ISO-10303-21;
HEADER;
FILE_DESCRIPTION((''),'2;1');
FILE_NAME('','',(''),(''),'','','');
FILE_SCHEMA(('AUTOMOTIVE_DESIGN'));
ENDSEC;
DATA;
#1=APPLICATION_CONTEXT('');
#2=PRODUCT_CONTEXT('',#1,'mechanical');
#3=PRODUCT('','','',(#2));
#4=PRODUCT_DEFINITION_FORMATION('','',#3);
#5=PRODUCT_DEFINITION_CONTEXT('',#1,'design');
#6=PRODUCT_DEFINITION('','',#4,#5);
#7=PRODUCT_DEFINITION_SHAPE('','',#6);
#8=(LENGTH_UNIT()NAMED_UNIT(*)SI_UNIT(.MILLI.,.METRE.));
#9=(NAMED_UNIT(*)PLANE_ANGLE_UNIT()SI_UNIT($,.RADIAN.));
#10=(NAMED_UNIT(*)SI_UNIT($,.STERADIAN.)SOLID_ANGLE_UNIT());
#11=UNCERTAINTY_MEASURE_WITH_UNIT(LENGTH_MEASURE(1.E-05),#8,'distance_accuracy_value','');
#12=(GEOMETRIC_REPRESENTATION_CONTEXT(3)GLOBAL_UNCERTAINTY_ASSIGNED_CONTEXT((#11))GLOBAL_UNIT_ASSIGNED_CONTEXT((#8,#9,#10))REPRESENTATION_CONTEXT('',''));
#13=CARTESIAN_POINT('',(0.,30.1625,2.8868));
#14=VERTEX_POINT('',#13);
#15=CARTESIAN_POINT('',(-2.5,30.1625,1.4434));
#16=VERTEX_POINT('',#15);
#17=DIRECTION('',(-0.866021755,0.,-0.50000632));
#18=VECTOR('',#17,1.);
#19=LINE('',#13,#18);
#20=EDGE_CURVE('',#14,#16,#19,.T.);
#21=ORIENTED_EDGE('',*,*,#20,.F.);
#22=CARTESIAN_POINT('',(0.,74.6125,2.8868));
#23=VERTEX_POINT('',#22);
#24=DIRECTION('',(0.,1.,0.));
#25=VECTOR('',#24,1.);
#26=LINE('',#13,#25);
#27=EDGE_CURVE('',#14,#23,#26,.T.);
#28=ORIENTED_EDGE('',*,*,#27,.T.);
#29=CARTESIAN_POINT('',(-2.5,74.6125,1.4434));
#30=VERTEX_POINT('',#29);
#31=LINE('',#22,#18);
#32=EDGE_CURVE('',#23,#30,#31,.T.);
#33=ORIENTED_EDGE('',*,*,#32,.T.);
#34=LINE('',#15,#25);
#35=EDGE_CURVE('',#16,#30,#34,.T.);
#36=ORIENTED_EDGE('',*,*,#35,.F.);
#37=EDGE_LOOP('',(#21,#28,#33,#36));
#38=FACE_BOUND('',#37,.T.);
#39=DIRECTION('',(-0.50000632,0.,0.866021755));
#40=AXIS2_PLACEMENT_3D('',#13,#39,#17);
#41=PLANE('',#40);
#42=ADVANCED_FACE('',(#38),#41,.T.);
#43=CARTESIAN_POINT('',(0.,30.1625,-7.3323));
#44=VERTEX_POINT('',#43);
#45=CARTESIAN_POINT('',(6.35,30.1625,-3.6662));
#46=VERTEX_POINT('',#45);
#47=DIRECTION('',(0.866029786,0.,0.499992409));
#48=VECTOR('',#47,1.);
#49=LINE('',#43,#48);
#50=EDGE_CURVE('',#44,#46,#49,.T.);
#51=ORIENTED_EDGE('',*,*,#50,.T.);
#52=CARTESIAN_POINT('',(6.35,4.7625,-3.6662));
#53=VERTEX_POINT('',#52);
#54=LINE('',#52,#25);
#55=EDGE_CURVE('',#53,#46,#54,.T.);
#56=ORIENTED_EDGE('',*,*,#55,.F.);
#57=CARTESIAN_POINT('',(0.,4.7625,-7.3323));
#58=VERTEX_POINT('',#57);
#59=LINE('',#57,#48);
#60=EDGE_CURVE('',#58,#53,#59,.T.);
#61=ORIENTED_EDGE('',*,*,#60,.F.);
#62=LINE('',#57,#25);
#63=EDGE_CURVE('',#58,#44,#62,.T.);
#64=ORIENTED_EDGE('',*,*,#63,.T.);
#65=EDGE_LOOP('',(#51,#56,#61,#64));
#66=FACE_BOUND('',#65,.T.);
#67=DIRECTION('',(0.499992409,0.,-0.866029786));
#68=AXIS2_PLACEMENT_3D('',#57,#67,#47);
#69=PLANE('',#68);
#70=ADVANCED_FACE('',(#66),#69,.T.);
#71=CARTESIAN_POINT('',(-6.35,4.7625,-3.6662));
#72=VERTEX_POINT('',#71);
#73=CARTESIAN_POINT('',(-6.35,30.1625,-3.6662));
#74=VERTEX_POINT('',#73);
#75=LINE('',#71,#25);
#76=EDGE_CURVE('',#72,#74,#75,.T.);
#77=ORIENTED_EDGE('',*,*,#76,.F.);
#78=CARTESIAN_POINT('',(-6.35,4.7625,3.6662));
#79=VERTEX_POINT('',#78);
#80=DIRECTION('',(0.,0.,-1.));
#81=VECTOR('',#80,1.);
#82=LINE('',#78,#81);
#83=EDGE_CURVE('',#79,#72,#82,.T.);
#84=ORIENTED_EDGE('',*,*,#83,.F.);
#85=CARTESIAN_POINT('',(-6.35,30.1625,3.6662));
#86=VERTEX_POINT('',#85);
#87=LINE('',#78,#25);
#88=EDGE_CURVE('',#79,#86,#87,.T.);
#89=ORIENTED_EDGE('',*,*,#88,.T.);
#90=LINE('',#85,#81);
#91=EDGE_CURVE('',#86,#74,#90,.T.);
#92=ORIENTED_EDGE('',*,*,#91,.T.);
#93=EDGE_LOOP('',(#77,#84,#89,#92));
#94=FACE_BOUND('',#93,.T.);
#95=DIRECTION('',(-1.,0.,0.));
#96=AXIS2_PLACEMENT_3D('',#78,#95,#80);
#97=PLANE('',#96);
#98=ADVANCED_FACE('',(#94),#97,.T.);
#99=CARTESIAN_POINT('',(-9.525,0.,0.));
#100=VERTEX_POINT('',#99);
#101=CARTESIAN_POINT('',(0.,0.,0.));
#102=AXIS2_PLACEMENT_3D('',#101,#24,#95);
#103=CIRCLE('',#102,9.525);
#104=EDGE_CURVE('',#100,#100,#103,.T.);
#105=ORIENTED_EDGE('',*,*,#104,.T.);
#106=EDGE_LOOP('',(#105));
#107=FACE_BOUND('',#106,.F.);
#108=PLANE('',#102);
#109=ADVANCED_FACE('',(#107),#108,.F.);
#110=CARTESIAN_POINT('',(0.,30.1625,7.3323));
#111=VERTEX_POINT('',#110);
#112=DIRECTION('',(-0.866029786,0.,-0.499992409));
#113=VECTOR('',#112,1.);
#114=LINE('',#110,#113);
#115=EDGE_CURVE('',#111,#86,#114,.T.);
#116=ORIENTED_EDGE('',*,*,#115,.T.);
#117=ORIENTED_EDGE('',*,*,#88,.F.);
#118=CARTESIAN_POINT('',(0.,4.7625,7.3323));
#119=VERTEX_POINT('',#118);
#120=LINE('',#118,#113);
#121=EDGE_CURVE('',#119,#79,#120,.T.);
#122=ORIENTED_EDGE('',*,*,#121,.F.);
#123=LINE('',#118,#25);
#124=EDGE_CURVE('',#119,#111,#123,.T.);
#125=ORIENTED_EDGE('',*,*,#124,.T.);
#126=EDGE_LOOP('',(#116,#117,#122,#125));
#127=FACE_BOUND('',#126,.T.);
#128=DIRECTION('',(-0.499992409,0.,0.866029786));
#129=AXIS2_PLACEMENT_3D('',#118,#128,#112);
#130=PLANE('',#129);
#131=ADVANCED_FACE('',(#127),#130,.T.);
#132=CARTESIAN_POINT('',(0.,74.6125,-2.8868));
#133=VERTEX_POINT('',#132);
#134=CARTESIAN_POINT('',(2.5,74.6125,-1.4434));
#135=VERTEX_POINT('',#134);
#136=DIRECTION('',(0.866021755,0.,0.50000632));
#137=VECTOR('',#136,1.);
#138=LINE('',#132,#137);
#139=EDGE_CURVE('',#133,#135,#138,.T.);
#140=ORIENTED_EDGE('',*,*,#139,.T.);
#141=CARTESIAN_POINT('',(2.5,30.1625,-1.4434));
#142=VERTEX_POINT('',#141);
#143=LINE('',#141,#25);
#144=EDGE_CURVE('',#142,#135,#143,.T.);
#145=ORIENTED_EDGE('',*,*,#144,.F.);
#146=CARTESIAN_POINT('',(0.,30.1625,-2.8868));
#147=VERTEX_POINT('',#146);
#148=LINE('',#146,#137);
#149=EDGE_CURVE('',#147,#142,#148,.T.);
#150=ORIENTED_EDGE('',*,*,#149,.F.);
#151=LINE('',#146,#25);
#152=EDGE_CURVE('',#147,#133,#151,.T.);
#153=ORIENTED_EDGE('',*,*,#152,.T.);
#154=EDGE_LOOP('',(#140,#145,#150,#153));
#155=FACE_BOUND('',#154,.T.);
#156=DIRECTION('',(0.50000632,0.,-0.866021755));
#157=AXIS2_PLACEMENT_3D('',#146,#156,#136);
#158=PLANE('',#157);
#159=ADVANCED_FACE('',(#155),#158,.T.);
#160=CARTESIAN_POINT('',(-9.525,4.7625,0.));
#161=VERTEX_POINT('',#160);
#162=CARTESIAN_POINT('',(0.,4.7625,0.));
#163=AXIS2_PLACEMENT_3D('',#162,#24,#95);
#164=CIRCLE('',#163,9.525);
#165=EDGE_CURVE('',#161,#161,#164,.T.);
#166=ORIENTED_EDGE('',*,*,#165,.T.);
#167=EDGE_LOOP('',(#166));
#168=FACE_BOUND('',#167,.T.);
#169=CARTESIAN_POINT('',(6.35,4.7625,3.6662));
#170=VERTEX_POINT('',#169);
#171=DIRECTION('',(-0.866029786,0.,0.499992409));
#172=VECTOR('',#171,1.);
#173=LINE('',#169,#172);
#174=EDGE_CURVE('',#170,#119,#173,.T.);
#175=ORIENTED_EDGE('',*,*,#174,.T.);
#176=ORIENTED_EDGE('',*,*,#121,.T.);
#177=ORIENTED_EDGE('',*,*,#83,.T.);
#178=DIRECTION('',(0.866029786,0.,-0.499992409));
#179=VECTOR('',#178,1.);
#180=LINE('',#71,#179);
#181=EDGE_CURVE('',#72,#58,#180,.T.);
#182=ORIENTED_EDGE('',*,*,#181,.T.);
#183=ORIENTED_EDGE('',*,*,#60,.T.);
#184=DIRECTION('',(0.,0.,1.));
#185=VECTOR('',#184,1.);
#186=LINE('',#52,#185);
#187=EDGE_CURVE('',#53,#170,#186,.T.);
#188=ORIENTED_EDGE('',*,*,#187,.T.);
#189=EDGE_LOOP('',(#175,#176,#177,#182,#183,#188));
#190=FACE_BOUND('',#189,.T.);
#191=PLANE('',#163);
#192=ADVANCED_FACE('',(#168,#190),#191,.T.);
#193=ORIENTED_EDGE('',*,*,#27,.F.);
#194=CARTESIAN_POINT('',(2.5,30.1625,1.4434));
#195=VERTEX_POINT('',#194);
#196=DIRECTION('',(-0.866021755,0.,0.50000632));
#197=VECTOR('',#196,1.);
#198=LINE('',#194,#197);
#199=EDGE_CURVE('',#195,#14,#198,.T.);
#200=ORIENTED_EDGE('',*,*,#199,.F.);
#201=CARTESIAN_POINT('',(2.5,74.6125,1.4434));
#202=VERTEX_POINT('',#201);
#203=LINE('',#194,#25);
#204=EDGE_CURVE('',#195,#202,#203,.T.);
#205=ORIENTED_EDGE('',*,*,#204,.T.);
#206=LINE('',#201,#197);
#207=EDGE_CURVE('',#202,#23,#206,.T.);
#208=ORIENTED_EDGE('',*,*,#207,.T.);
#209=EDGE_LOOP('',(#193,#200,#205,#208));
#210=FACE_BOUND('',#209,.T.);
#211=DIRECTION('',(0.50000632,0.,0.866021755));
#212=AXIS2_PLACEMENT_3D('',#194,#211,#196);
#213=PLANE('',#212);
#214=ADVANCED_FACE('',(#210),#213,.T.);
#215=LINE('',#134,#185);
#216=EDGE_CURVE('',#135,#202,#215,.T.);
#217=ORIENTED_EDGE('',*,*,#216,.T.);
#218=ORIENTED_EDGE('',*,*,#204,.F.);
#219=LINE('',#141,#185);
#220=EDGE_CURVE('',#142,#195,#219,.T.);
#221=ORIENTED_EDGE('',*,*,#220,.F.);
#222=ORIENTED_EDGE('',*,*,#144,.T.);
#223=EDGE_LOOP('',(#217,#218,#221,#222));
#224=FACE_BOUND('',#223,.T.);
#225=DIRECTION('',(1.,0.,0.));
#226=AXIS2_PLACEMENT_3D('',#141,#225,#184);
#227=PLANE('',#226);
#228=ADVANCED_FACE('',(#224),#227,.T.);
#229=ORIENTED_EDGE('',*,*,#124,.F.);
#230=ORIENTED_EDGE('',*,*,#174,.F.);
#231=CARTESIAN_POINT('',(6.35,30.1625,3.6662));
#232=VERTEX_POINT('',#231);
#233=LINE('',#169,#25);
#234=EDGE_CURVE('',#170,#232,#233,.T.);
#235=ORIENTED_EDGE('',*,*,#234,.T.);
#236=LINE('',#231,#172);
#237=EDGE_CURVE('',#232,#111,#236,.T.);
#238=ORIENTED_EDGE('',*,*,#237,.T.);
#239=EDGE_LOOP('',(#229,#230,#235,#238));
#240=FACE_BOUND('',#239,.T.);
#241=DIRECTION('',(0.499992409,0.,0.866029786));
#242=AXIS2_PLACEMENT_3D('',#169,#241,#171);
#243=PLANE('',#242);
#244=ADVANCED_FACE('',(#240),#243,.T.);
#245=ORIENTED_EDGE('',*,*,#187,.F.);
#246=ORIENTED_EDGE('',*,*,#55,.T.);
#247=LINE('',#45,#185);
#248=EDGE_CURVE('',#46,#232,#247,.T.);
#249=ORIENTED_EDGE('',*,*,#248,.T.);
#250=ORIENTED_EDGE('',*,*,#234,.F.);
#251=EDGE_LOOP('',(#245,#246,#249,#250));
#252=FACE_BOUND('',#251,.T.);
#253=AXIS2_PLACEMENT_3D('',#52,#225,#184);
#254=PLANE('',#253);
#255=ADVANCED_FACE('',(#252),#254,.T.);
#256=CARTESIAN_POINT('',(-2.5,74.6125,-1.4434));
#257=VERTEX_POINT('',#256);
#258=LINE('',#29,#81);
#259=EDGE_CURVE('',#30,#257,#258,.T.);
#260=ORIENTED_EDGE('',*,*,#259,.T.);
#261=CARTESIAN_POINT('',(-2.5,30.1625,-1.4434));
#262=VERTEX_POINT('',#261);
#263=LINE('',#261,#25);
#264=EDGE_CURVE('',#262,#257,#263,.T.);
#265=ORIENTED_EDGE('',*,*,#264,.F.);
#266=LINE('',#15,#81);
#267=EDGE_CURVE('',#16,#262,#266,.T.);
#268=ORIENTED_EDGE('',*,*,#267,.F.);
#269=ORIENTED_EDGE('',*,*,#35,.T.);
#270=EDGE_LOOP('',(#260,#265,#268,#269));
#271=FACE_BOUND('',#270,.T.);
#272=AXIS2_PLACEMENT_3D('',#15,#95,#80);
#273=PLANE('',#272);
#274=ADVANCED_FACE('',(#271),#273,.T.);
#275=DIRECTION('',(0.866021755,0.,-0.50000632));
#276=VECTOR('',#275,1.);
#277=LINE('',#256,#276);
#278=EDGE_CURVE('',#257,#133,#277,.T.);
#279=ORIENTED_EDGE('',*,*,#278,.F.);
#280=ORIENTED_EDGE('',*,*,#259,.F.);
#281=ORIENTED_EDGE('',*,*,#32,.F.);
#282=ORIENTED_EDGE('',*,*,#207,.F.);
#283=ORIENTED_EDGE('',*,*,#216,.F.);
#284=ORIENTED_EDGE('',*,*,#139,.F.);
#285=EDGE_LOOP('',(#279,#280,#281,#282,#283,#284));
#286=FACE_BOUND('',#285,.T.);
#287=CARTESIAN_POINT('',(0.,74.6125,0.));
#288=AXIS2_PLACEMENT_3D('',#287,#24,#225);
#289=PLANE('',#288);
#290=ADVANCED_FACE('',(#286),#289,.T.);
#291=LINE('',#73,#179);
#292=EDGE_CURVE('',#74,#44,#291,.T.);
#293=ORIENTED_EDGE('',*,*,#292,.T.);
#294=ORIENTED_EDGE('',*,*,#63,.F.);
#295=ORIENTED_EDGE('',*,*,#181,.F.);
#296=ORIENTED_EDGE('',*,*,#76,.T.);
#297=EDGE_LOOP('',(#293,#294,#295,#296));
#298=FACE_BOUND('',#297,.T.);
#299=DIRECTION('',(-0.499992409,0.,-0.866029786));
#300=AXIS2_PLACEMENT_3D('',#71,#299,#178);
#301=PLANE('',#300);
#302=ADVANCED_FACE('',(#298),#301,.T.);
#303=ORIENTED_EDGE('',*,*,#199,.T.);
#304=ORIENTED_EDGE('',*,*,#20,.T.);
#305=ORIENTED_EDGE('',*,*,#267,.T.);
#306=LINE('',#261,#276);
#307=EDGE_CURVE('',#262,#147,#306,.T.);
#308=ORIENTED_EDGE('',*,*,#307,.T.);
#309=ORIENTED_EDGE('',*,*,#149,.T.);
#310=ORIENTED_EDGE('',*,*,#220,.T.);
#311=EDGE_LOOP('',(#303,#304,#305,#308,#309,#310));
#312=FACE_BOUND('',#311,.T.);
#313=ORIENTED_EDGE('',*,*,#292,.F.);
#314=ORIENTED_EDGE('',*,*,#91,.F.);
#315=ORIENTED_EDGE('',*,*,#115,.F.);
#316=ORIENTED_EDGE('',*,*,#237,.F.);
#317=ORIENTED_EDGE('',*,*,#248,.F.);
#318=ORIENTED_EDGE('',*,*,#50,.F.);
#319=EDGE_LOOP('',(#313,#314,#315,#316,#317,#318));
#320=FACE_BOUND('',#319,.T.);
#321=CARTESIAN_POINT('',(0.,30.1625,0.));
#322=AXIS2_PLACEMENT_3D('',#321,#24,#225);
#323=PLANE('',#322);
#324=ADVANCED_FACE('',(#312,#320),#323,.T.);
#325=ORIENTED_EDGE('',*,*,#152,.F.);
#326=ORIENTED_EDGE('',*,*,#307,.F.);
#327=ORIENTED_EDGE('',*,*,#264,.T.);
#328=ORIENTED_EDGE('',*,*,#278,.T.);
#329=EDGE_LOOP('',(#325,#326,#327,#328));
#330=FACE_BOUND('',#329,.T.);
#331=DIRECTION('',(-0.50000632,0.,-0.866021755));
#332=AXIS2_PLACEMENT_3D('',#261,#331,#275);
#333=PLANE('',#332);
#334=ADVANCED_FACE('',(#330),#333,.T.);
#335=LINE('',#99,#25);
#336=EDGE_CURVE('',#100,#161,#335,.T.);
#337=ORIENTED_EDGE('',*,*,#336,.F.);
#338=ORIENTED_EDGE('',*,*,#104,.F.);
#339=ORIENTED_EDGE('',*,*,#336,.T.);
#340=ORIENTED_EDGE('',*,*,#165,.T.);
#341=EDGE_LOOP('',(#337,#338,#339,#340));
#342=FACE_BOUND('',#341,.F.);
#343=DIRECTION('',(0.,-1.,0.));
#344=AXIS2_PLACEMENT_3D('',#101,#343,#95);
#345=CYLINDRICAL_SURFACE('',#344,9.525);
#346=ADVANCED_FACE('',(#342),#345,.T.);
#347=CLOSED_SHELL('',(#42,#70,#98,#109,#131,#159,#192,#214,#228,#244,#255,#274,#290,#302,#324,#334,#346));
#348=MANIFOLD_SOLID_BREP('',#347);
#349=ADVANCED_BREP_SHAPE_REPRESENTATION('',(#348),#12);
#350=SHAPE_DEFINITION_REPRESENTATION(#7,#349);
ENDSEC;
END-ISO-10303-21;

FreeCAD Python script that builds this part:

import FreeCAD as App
import Part
import Sketcher
from FreeCAD import Vector
Q = App.Units.Quantity

doc = App.newDocument("Part")
body = doc.addObject("PartDesign::Body", "Body")

# Sketch on XZ plane
sketch1 = body.newObject("Sketcher::SketchObject", "Sketch")
sketch1.AttachmentSupport = (doc.getObject("XZ_Plane"), [""])
sketch1.MapMode = "FlatFace"
sketch1.addGeometry(Part.Circle(Vector(0, 0, 0), Vector(0, 0, 1), 10), False)
sketch1.addConstraint([
    Sketcher.Constraint("Coincident", 0, 3, -1, 1),
    Sketcher.Constraint("Diameter", 0, Q("0.75 in")),
])
pad1 = body.newObject("PartDesign::Pad", "Pad")
pad1.Profile = sketch1
pad1.Length = Q("0.1875 in")
pad1.Reversed = True

# Sketch on XZ plane
sketch2 = body.newObject("Sketcher::SketchObject", "Sketch001")
sketch2.AttachmentSupport = (doc.getObject("XZ_Plane"), [""])
sketch2.MapMode = "FlatFace"
sketch2.AttachmentOffset = App.Placement(Vector(0, 0, -0.1875 * 25.4), App.Rotation())
sketch2.addGeometry([
    Part.LineSegment(Vector(-6, 4, 0), Vector(0, 7, 0)),  # 0
    Part.LineSegment(Vector(0, 7, 0), Vector(6, 4, 0)),  # 1
    Part.LineSegment(Vector(6, 4, 0), Vector(6, -4, 0)),  # 2
    Part.LineSegment(Vector(6, -4, 0), Vector(0, -7, 0)),  # 3
    Part.LineSegment(Vector(0, -7, 0), Vector(-6, -4, 0)),  # 4
    Part.LineSegment(Vector(-6, -4, 0), Vector(-6, 4, 0)),  # 5
], False)
sketch2.addConstraint([
    Sketcher.Constraint("Coincident", 0, 2, 1, 1),
    Sketcher.Constraint("Coincident", 1, 2, 2, 1),
    Sketcher.Constraint("Coincident", 2, 2, 3, 1),
    Sketcher.Constraint("Coincident", 3, 2, 4, 1),
    Sketcher.Constraint("Coincident", 4, 2, 5, 1),
    Sketcher.Constraint("Coincident", 5, 2, 0, 1),
    Sketcher.Constraint("Vertical", 2),
    Sketcher.Constraint("Vertical", 5),
    Sketcher.Constraint("Symmetric", 0, 2, 3, 2, -1, 1),
    Sketcher.Constraint("Symmetric", 1, 2, 4, 2, -1, 1),
    Sketcher.Constraint("PointOnObject", 0, 2, -2),
    Sketcher.Constraint("Parallel", 0, 3),
    Sketcher.Constraint("Horizontal", 2, 2, 4, 2),
    Sketcher.Constraint("DistanceX", 4, 2, 2, 2, Q("0.5 in")),
    Sketcher.Constraint("Angle", 0, Q("29.9995 deg")),
    Sketcher.Constraint("DistanceY", 2, 2, 0, 2, Q("0.433 in")),
])
pad2 = body.newObject("PartDesign::Pad", "Pad001")
pad2.Profile = sketch2
pad2.Length = Q("1 in")
pad2.Reversed = True

# Sketch on XZ plane
sketch3 = body.newObject("Sketcher::SketchObject", "Sketch002")
sketch3.AttachmentSupport = (doc.getObject("XZ_Plane"), [""])
sketch3.MapMode = "FlatFace"
sketch3.AttachmentOffset = App.Placement(Vector(0, 0, -1.1875 * 25.4), App.Rotation())
sketch3.addGeometry([
    Part.LineSegment(Vector(2.5, -1.4, 0), Vector(0, -2.9, 0)),  # 0
    Part.LineSegment(Vector(0, -2.9, 0), Vector(-2.5, -1.4, 0)),  # 1
    Part.LineSegment(Vector(-2.5, -1.4, 0), Vector(-2.5, 1.4, 0)),  # 2
    Part.LineSegment(Vector(-2.5, 1.4, 0), Vector(0, 2.9, 0)),  # 3
    Part.LineSegment(Vector(0, 2.9, 0), Vector(2.5, 1.4, 0)),  # 4
    Part.LineSegment(Vector(2.5, 1.4, 0), Vector(2.5, -1.4, 0)),  # 5
], False)
sketch3.addConstraint([
    Sketcher.Constraint("Coincident", 0, 2, 1, 1),
    Sketcher.Constraint("Coincident", 1, 2, 2, 1),
    Sketcher.Constraint("Coincident", 2, 2, 3, 1),
    Sketcher.Constraint("Coincident", 3, 2, 4, 1),
    Sketcher.Constraint("Coincident", 4, 2, 5, 1),
    Sketcher.Constraint("Coincident", 5, 2, 0, 1),
    Sketcher.Constraint("Vertical", 2),
    Sketcher.Constraint("Vertical", 5),
    Sketcher.Constraint("Symmetric", 0, 2, 3, 2, -1, 1),
    Sketcher.Constraint("Symmetric", 1, 2, 4, 2, -1, 1),
    Sketcher.Constraint("PointOnObject", 0, 2, -2),
    Sketcher.Constraint("Parallel", 0, 3),
    Sketcher.Constraint("Horizontal", 2, 2, 4, 2),
    Sketcher.Constraint("Angle", 0, Q("-149.9996 deg")),
    Sketcher.Constraint("DistanceX", 2, 2, 4, 2, 5.0),
    Sketcher.Constraint("DistanceY", 2, 1, 2, 2, 2.8868),
])
pad3 = body.newObject("PartDesign::Pad", "Pad002")
pad3.Profile = sketch3
pad3.Length = Q("1.75 in")
pad3.Reversed = True

doc.recompute()
